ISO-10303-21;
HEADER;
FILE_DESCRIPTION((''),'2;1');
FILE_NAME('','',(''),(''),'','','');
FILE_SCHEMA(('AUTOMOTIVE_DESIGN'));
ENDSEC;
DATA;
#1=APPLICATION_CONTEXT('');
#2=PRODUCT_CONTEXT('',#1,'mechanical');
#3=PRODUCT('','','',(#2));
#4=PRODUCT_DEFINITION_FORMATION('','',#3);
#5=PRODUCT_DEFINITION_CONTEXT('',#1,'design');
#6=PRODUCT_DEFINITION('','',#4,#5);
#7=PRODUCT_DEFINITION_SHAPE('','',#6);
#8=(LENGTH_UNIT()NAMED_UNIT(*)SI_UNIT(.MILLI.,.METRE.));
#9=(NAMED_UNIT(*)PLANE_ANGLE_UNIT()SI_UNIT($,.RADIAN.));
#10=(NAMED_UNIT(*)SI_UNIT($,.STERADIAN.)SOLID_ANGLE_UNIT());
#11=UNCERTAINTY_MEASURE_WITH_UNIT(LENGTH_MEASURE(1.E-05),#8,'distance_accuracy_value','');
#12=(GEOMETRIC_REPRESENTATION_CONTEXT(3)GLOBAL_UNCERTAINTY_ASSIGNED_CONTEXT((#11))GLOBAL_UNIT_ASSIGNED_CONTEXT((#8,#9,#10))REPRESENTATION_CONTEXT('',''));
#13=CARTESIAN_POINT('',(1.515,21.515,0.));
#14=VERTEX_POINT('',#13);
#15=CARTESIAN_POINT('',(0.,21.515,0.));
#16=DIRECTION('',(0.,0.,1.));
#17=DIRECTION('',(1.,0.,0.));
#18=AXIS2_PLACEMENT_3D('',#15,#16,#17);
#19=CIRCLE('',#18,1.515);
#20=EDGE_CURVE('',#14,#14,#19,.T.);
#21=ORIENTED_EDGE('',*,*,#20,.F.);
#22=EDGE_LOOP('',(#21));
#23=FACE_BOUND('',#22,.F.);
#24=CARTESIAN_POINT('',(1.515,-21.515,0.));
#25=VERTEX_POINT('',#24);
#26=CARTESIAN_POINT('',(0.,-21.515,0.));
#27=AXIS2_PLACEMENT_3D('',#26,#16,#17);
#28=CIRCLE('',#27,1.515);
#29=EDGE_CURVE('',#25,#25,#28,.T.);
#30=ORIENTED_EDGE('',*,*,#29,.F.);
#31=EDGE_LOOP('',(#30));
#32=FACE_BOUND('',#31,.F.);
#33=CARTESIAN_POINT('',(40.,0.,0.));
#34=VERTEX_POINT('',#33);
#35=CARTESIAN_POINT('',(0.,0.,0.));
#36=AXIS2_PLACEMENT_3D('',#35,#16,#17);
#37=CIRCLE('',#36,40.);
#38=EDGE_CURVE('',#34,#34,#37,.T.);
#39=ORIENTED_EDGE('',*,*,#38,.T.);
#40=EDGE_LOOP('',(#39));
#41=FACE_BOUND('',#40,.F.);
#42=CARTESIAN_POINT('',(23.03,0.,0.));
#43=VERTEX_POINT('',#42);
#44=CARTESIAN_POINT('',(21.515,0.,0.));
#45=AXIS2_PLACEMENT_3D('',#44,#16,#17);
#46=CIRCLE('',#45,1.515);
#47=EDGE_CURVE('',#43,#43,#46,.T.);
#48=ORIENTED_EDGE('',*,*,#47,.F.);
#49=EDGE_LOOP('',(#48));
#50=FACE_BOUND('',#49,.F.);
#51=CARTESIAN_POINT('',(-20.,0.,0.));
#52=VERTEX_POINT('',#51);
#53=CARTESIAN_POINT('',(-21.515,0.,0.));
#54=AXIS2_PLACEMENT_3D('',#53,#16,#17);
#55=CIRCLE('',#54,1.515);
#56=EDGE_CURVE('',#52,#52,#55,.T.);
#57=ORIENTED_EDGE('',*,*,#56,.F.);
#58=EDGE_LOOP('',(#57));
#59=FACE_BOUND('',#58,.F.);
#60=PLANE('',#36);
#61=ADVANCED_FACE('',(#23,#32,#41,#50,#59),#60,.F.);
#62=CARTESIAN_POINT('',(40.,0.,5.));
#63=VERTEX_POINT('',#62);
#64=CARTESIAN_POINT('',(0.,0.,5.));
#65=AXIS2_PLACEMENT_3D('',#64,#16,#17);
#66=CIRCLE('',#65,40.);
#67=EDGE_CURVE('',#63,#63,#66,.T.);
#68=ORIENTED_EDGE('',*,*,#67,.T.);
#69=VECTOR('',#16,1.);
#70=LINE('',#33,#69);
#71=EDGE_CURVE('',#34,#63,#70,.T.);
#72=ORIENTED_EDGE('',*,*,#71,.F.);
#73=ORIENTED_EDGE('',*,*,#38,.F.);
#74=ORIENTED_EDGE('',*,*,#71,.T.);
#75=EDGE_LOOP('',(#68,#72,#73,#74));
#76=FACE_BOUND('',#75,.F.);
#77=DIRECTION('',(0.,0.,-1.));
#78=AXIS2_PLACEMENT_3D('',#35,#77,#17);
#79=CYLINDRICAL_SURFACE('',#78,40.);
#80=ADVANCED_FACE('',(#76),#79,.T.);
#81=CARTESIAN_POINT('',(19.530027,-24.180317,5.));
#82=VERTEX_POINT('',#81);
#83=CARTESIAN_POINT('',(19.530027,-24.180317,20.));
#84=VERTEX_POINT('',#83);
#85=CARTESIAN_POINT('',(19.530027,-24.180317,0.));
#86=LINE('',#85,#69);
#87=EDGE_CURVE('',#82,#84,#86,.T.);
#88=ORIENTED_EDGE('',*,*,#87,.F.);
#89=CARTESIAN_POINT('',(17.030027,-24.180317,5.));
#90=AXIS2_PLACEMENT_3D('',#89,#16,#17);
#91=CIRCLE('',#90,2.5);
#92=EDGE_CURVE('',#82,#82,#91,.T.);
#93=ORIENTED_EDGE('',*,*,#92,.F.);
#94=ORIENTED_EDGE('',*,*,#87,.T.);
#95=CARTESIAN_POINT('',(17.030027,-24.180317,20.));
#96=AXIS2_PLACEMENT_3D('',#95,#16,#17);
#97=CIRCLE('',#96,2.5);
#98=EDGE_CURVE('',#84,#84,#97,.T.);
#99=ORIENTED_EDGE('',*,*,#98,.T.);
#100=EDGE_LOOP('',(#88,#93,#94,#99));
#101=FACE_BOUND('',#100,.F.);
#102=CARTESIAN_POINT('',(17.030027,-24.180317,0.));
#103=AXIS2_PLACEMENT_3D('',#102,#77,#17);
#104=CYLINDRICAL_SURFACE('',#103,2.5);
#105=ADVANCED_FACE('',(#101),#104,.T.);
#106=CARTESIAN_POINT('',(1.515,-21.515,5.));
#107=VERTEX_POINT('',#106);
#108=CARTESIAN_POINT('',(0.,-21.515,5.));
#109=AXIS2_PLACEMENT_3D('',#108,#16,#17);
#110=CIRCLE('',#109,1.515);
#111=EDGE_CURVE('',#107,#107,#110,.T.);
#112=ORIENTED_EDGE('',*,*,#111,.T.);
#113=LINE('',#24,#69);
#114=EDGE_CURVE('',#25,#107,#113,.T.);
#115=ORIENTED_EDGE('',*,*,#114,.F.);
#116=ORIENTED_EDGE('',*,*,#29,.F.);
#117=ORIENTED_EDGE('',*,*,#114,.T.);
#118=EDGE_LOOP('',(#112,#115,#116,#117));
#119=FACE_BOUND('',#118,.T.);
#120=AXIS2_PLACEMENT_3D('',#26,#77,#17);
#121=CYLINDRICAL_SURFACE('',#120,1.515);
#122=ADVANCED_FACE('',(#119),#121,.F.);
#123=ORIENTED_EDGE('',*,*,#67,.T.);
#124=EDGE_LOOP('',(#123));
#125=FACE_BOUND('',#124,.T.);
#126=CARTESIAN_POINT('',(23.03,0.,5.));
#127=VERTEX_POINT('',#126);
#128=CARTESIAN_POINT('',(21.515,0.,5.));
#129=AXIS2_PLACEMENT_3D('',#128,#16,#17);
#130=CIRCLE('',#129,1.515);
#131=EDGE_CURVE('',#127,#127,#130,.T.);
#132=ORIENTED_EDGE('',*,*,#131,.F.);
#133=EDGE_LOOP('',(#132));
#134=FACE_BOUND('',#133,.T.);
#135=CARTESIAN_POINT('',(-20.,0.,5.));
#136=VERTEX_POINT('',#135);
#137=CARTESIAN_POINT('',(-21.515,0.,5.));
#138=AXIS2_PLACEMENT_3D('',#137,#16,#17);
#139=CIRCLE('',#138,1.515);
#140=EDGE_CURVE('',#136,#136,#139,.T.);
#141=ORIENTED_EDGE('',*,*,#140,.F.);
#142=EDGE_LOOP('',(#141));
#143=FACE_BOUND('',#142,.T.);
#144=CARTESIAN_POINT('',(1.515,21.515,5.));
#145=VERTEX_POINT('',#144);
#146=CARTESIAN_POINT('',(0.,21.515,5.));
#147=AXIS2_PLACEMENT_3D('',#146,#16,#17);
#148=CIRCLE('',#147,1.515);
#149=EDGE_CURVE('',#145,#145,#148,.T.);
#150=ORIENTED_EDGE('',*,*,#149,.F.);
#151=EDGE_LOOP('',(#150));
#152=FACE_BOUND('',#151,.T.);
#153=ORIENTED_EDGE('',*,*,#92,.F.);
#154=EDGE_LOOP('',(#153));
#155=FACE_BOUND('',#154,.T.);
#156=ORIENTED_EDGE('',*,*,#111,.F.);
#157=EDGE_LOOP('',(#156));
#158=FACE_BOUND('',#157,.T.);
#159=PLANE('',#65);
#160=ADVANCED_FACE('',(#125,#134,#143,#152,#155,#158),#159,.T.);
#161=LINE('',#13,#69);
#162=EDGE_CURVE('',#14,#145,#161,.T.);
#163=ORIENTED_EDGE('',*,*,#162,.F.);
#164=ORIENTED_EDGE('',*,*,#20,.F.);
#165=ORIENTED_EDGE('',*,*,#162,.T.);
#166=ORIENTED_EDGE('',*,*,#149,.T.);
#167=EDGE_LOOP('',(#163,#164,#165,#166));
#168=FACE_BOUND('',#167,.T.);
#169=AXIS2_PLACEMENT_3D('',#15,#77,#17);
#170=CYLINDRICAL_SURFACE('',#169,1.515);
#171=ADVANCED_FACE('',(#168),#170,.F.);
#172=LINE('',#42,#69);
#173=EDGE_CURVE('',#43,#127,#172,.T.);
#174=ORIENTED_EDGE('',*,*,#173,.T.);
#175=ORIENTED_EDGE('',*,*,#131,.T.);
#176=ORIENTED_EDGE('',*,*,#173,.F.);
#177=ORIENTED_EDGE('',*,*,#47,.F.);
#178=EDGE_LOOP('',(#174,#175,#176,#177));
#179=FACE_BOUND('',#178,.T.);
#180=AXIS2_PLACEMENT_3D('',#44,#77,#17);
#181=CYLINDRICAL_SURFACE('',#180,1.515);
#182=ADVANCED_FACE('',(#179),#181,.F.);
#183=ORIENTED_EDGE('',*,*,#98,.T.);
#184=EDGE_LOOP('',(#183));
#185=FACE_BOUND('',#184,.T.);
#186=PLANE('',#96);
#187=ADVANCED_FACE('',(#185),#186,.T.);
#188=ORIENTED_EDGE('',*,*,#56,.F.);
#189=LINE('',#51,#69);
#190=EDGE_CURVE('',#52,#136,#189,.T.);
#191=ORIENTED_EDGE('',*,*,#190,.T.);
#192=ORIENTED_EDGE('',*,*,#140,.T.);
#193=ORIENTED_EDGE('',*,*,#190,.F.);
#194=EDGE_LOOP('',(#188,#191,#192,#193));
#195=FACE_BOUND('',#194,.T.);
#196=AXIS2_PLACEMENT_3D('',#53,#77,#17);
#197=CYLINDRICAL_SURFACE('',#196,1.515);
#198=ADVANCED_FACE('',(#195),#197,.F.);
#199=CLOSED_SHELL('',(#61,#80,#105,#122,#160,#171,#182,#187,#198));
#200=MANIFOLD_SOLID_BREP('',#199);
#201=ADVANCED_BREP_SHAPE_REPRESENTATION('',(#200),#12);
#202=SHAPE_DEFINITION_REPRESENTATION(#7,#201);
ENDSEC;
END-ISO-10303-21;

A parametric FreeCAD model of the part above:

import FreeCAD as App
import Part
import Sketcher
from FreeCAD import Vector
Q = App.Units.Quantity

doc = App.newDocument("Part")
body = doc.addObject("PartDesign::Body", "Body")

# Sketch on XY plane
sketch1 = body.newObject("Sketcher::SketchObject", "Sketch")
sketch1.AttachmentSupport = (doc.getObject("XY_Plane"), [""])
sketch1.MapMode = "FlatFace"
sketch1.addGeometry([
    Part.Circle(Vector(0, 0, 0), Vector(0, 0, 1), 40),  # 0
    Part.Circle(Vector(0, -21.5, 0), Vector(0, 0, 1), 1.5),  # 1
    Part.Circle(Vector(17, -24.2, 0), Vector(0, 0, 1), 2.5),  # 2
    Part.Circle(Vector(-21.5, 0, 0), Vector(0, 0, 1), 1.5),  # 3
    Part.Circle(Vector(21.5, 0, 0), Vector(0, 0, 1), 1.5),  # 4
    Part.Circle(Vector(0, 21.5, 0), Vector(0, 0, 1), 1.5),  # 5
], False)
sketch1.addConstraint([
    Sketcher.Constraint("Coincident", 0, 3, -1, 1),
    Sketcher.Constraint("Equal", 1, 3),
    Sketcher.Constraint("Equal", 3, 4),
    Sketcher.Constraint("Equal", 4, 5),
    Sketcher.Constraint("Symmetric", 3, 3, 4, 3, -1, 1),
    Sketcher.Constraint("Symmetric", 1, 3, 5, 3, -1, 1),
    Sketcher.Constraint("PointOnObject", 1, 3, -2),
    Sketcher.Constraint("PointOnObject", 3, 3, -1),
    Sketcher.Constraint("Diameter", 0, Q("80 mm")),
    Sketcher.Constraint("Diameter", 2, Q("5 mm")),
    Sketcher.Constraint("Diameter", 1, Q("3.03 mm")),
    Sketcher.Constraint("DistanceX", 3, 3, 4, 3, Q("43.03 mm")),
    Sketcher.Constraint("DistanceY", 1, 3, 5, 3, Q("43.03 mm")),
    Sketcher.Constraint("DistanceX", -1, 1, 2, 3, Q("17.030027 mm")),
    Sketcher.Constraint("DistanceY", 2, 3, -1, 1, Q("24.180317 mm")),
])
pad1 = body.newObject("PartDesign::Pad", "Pad")
pad1.Profile = sketch1
pad1.Length = 5

# Sketch on XY plane
sketch2 = body.newObject("Sketcher::SketchObject", "Sketch001")
sketch2.AttachmentSupport = (doc.getObject("XY_Plane"), [""])
sketch2.MapMode = "FlatFace"
sketch2.addGeometry(Part.Circle(Vector(17, -24.2, 0), Vector(0, 0, 1), 2.5), False)
sketch2.addConstraint([
    Sketcher.Constraint("Diameter", 0, Q("5 mm")),
    Sketcher.Constraint("DistanceX", -1, 1, 0, 3, Q("17.030027 mm")),
    Sketcher.Constraint("DistanceY", 0, 3, -1, 1, Q("24.180317 mm")),
])
pad2 = body.newObject("PartDesign::Pad", "Pad001")
pad2.Profile = sketch2
pad2.Length = 20

doc.recompute()
